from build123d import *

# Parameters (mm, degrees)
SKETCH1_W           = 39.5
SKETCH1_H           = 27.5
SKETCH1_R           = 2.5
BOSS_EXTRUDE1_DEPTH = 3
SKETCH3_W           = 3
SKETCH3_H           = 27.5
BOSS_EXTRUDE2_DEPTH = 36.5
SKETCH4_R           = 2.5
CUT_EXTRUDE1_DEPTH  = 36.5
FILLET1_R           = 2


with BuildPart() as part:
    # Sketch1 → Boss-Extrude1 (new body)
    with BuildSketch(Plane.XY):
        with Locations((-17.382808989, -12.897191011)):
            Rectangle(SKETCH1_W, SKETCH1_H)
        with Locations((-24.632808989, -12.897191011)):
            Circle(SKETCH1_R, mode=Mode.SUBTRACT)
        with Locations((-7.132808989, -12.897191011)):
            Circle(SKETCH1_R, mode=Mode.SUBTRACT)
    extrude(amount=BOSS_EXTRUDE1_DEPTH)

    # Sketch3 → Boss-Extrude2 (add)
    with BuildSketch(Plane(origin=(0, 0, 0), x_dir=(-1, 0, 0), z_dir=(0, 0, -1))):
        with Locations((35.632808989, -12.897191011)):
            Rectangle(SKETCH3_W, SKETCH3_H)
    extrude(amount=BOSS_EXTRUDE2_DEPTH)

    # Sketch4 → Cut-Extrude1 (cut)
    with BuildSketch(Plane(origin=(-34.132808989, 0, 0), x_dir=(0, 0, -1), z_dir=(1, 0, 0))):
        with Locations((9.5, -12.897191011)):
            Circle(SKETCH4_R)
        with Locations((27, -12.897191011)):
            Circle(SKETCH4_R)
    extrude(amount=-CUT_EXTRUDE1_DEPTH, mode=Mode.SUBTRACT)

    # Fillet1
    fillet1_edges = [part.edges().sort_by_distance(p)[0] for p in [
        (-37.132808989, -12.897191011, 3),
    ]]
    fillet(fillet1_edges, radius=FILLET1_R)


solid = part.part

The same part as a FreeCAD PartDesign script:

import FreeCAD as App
import Part
import Sketcher

V = App.Vector
Q = App.Units.Quantity


def edges_at(feature, points):
    """Names of the edges that pass closest to the given points."""
    edges = feature.Shape.Edges
    near = lambda p: min(range(len(edges)), key=lambda i: edges[i].distToShape(Part.Vertex(*p))[0])
    return sorted({f"Edge{near(p) + 1}" for p in points})

doc = App.newDocument("Part")
body = doc.addObject("PartDesign::Body", "Body")

# Sketch on XY plane
sketch1 = doc.addObject("Sketcher::SketchObject", "Sketch")
body.addObject(sketch1)
sketch1.AttachmentSupport = (doc.XY_Plane, [""])
sketch1.MapMode = "FlatFace"
sketch1.addGeometry(Part.LineSegment(V(-37.1, 0.9, 0), V(-37.1, -26.6, 0)), False)
sketch1.addGeometry(Part.LineSegment(V(-37.1, -26.6, 0), V(2.4, -26.6, 0)), False)
sketch1.addGeometry(Part.LineSegment(V(2.4, -26.6, 0), V(2.4, 0.9, 0)), False)
sketch1.addGeometry(Part.LineSegment(V(2.4, 0.9, 0), V(-37.1, 0.9, 0)), False)
sketch1.addGeometry(Part.Circle(V(-24.6, -12.9, 0), V(0, 0, 1), 2.5), False)
sketch1.addGeometry(Part.Circle(V(-7.1, -12.9, 0), V(0, 0, 1), 2.5), False)
sketch1.addConstraint(Sketcher.Constraint("Coincident", 0, 2, 1, 1))
sketch1.addConstraint(Sketcher.Constraint("Coincident", 1, 2, 2, 1))
sketch1.addConstraint(Sketcher.Constraint("Coincident", 2, 2, 3, 1))
sketch1.addConstraint(Sketcher.Constraint("Coincident", 3, 2, 0, 1))
sketch1.addConstraint(Sketcher.Constraint("Vertical", 0))
sketch1.addConstraint(Sketcher.Constraint("Horizontal", 1))
sketch1.addConstraint(Sketcher.Constraint("Vertical", 2))
sketch1.addConstraint(Sketcher.Constraint("Horizontal", 3))
sketch1.addConstraint(Sketcher.Constraint("Equal", 4, 5))
sketch1.addConstraint(Sketcher.Constraint("Horizontal", 4, 3, 5, 3))
sketch1.addConstraint(Sketcher.Constraint("Diameter", 4, Q("5 mm")))
sketch1.addConstraint(Sketcher.Constraint("DistanceX", 1, 1, 1, 2, Q("39.5 mm")))
sketch1.addConstraint(Sketcher.Constraint("DistanceY", 0, 2, 0, 1, Q("27.5 mm")))
sketch1.addConstraint(Sketcher.Constraint("DistanceX", 0, 2, 5, 3, Q("30 mm")))
sketch1.addConstraint(Sketcher.Constraint("DistanceX", 4, 3, 1, 2, Q("27 mm")))
sketch1.addConstraint(Sketcher.Constraint("DistanceY", 0, 2, 4, 3, Q("13.75 mm")))
sketch1.addConstraint(Sketcher.Constraint("DistanceX", 4, 3, -1, 1, Q("24.632809 mm")))
sketch1.addConstraint(Sketcher.Constraint("DistanceY", 4, 3, -1, 1, Q("12.897191 mm")))
pad1 = doc.addObject("PartDesign::Pad", "Pad")
body.addObject(pad1)
pad1.Profile = sketch1
pad1.Length = 3

# Sketch on XY plane
sketch2 = doc.addObject("Sketcher::SketchObject", "Sketch001")
body.addObject(sketch2)
sketch2.AttachmentSupport = (doc.XY_Plane, [""])
sketch2.MapMode = "FlatFace"
sketch2.addGeometry(Part.LineSegment(V(-34.1, 0.9, 0), V(-34.1, -26.6, 0)), False)
sketch2.addGeometry(Part.LineSegment(V(-34.1, -26.6, 0), V(-37.1, -26.6, 0)), False)
sketch2.addGeometry(Part.LineSegment(V(-37.1, -26.6, 0), V(-37.1, 0.9, 0)), False)
sketch2.addGeometry(Part.LineSegment(V(-37.1, 0.9, 0), V(-34.1, 0.9, 0)), False)
sketch2.addConstraint(Sketcher.Constraint("Coincident", 0, 2, 1, 1))
sketch2.addConstraint(Sketcher.Constraint("Coincident", 1, 2, 2, 1))
sketch2.addConstraint(Sketcher.Constraint("Coincident", 2, 2, 3, 1))
sketch2.addConstraint(Sketcher.Constraint("Coincident", 3, 2, 0, 1))
sketch2.addConstraint(Sketcher.Constraint("Vertical", 0))
sketch2.addConstraint(Sketcher.Constraint("Horizontal", 1))
sketch2.addConstraint(Sketcher.Constraint("Vertical", 2))
sketch2.addConstraint(Sketcher.Constraint("Horizontal", 3))
sketch2.addConstraint(Sketcher.Constraint("DistanceX", 1, 2, 1, 1, Q("3 mm")))
sketch2.addConstraint(Sketcher.Constraint("DistanceY", 0, 2, 0, 1, Q("27.5 mm")))
sketch2.addConstraint(Sketcher.Constraint("DistanceX", 0, 2, -1, 1, Q("34.132809 mm")))
sketch2.addConstraint(Sketcher.Constraint("DistanceY", 0, 2, -1, 1, Q("26.647191 mm")))
pad2 = doc.addObject("PartDesign::Pad", "Pad001")
body.addObject(pad2)
pad2.Profile = sketch2
pad2.Length = 36.5
pad2.Reversed = True

# Sketch on YZ plane
sketch3 = doc.addObject("Sketcher::SketchObject", "Sketch002")
body.addObject(sketch3)
sketch3.AttachmentSupport = (doc.YZ_Plane, [""])
sketch3.MapMode = "FlatFace"
sketch3.AttachmentOffset = App.Placement(V(0, 0, -34.132809), App.Rotation())
sketch3.addGeometry(Part.Circle(V(-12.9, -9.5, 0), V(0, 0, 1), 2.5), False)
sketch3.addGeometry(Part.Circle(V(-12.9, -27, 0), V(0, 0, 1), 2.5), False)
sketch3.addConstraint(Sketcher.Constraint("Equal", 0, 1))
sketch3.addConstraint(Sketcher.Constraint("Vertical", 0, 3, 1, 3))
sketch3.addConstraint(Sketcher.Constraint("Diameter", 0, Q("5 mm")))
sketch3.addConstraint(Sketcher.Constraint("DistanceY", 1, 3, -1, 1, Q("27 mm")))
sketch3.addConstraint(Sketcher.Constraint("DistanceY", 0, 3, -1, 1, Q("9.5 mm")))
sketch3.addConstraint(Sketcher.Constraint("DistanceX", 0, 3, -1, 1, Q("12.897191 mm")))
pocket1 = doc.addObject("PartDesign::Pocket", "Pocket")
body.addObject(pocket1)
pocket1.Profile = sketch3
pocket1.Length = 36.5
doc.recompute()

fillet = doc.addObject("PartDesign::Fillet", "Fillet")
body.addObject(fillet)
fillet.Base = (pocket1, edges_at(pocket1, [(-37.133, -12.897, 3)]))
fillet.Radius = 2

doc.recompute()
